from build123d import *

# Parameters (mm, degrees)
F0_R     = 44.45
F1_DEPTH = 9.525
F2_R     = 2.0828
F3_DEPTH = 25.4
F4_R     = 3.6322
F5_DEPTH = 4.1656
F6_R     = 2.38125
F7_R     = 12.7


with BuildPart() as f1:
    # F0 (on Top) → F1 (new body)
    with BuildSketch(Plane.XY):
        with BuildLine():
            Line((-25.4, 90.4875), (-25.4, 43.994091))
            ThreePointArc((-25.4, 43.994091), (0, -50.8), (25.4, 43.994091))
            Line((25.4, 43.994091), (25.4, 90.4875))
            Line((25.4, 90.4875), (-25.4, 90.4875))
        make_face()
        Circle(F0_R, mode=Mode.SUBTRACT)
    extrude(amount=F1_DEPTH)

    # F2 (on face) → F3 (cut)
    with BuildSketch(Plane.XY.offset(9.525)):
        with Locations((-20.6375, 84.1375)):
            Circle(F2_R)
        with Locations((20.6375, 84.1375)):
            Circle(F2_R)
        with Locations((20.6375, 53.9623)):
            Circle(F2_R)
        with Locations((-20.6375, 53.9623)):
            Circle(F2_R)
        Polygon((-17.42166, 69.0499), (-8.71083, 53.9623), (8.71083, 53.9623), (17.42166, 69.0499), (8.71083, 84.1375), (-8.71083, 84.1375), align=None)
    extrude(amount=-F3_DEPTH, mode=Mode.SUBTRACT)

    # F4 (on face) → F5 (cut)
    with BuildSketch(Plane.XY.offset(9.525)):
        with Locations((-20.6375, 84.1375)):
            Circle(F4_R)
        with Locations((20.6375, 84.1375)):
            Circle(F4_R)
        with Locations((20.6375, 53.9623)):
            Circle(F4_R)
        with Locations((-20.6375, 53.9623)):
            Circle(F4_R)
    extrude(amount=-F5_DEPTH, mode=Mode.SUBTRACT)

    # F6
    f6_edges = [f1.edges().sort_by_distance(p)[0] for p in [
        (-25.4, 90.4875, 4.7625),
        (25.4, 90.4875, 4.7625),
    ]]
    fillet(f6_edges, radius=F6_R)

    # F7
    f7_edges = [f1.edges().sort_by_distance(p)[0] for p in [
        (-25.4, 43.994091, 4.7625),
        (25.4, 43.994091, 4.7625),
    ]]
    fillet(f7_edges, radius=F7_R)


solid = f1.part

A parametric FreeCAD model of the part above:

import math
import FreeCAD as App
import Part
import Sketcher
Q = App.Units.Quantity


def edges_at(feature, points):
    """Names of the edges that pass closest to the given points."""
    edges = feature.Shape.Edges
    near = lambda p: min(range(len(edges)), key=lambda i: edges[i].distToShape(Part.Vertex(*p))[0])
    return sorted({f"Edge{near(p) + 1}" for p in points})

doc = App.newDocument("Part")
body = doc.addObject("PartDesign::Body", "Body")

# Sketch on XY plane
sketch1 = body.newObject("Sketcher::SketchObject", "Sketch")
sketch1.AttachmentSupport = (doc.getObject("XY_Plane"), [""])
sketch1.MapMode = "FlatFace"
sketch1.addGeometry([
    Part.LineSegment(App.Vector(-25, 90, 0), App.Vector(-25, 44, 0)),  # 0
    Part.ArcOfCircle(Part.Circle(App.Vector(0, 0, 0), App.Vector(0, 0, 1), 51), math.radians(120), math.radians(420)),  # 1
    Part.LineSegment(App.Vector(25, 44, 0), App.Vector(25, 90, 0)),  # 2
    Part.LineSegment(App.Vector(25, 90, 0), App.Vector(-25, 90, 0)),  # 3
    Part.Circle(App.Vector(0, 0, 0), App.Vector(0, 0, 1), 44),  # 4
], False)
sketch1.addConstraint([
    Sketcher.Constraint("Coincident", 0, 2, 1, 1),
    Sketcher.Constraint("Coincident", 1, 2, 2, 1),
    Sketcher.Constraint("Coincident", 2, 2, 3, 1),
    Sketcher.Constraint("Coincident", 3, 2, 0, 1),
    Sketcher.Constraint("Vertical", 0),
    Sketcher.Constraint("Vertical", 2),
    Sketcher.Constraint("Horizontal", 3),
    Sketcher.Constraint("Coincident", 1, 3, -1, 1),
    Sketcher.Constraint("Coincident", 4, 3, -1, 1),
    Sketcher.Constraint("Horizontal", 0, 2, 1, 2),
    Sketcher.Constraint("Radius", 1, Q("2 in")),
    Sketcher.Constraint("Diameter", 4, Q("3.5 in")),
    Sketcher.Constraint("DistanceX", 3, 2, 3, 1, Q("2 in")),
    Sketcher.Constraint("DistanceY", -1, 1, 2, 2, Q("3.5625 in")),
])
pad1 = body.newObject("PartDesign::Pad", "Pad")
pad1.Profile = sketch1
pad1.Length = Q("0.375 in")

# Sketch on XY plane
sketch2 = body.newObject("Sketcher::SketchObject", "Sketch001")
sketch2.AttachmentSupport = (doc.getObject("XY_Plane"), [""])
sketch2.MapMode = "FlatFace"
sketch2.AttachmentOffset = App.Placement(App.Vector(0, 0, 0.375 * 25.4), App.Rotation())
sketch2.addGeometry([
    Part.Circle(App.Vector(-20.6, 84.1, 0), App.Vector(0, 0, 1), 2.1),  # 0
    Part.Circle(App.Vector(20.6, 84.1, 0), App.Vector(0, 0, 1), 2.1),  # 1
    Part.Circle(App.Vector(20.6, 54, 0), App.Vector(0, 0, 1), 2.1),  # 2
    Part.Circle(App.Vector(-20.6, 54, 0), App.Vector(0, 0, 1), 2.1),  # 3
    Part.LineSegment(App.Vector(-17.4, 69, 0), App.Vector(-8.7, 54, 0)),  # 4
    Part.LineSegment(App.Vector(-8.7, 54, 0), App.Vector(8.7, 54, 0)),  # 5
    Part.LineSegment(App.Vector(8.7, 54, 0), App.Vector(17.4, 69, 0)),  # 6
    Part.LineSegment(App.Vector(17.4, 69, 0), App.Vector(8.7, 84.1, 0)),  # 7
    Part.LineSegment(App.Vector(8.7, 84.1, 0), App.Vector(-8.7, 84.1, 0)),  # 8
    Part.LineSegment(App.Vector(-8.7, 84.1, 0), App.Vector(-17.4, 69, 0)),  # 9
], False)
sketch2.addConstraint([
    Sketcher.Constraint("Coincident", 4, 2, 5, 1),
    Sketcher.Constraint("Coincident", 5, 2, 6, 1),
    Sketcher.Constraint("Coincident", 6, 2, 7, 1),
    Sketcher.Constraint("Coincident", 7, 2, 8, 1),
    Sketcher.Constraint("Coincident", 8, 2, 9, 1),
    Sketcher.Constraint("Coincident", 9, 2, 4, 1),
    Sketcher.Constraint("Horizontal", 5),
    Sketcher.Constraint("Horizontal", 8),
    Sketcher.Constraint("Equal", 0, 1),
    Sketcher.Constraint("Equal", 1, 2),
    Sketcher.Constraint("Equal", 2, 3),
    Sketcher.Constraint("Symmetric", 0, 3, 1, 3, -2),
    Sketcher.Constraint("Symmetric", 2, 3, 3, 3, -2),
    Sketcher.Constraint("Symmetric", 6, 2, 9, 2, -2),
    Sketcher.Constraint("Parallel", 4, 7),
    Sketcher.Constraint("Parallel", 6, 9),
    Sketcher.Constraint("Horizontal", 3, 3, 4, 2),
    Sketcher.Constraint("Horizontal", 1, 3, 7, 2),
    Sketcher.Constraint("Vertical", 1, 3, 2, 3),
    Sketcher.Constraint("Vertical", 5, 2, 7, 2),
    Sketcher.Constraint("Vertical", 4, 2, 8, 2),
    Sketcher.Constraint("Diameter", 0, Q("0.164 in")),
    Sketcher.Constraint("Angle", 4, Q("-60 deg")),
    Sketcher.Constraint("DistanceX", 0, 3, -1, 1, Q("0.8125 in")),
    Sketcher.Constraint("DistanceY", -1, 1, 0, 3, Q("3.3125 in")),
    Sketcher.Constraint("DistanceY", 2, 3, 1, 3, Q("1.188 in")),
    Sketcher.Constraint("DistanceX", 5, 1, 5, 2, Q("17.42166 mm")),
])
pocket1 = body.newObject("PartDesign::Pocket", "Pocket")
pocket1.Profile = sketch2
pocket1.Length = Q("1 in")

# Sketch on XY plane
sketch3 = body.newObject("Sketcher::SketchObject", "Sketch002")
sketch3.AttachmentSupport = (doc.getObject("XY_Plane"), [""])
sketch3.MapMode = "FlatFace"
sketch3.AttachmentOffset = App.Placement(App.Vector(0, 0, 0.375 * 25.4), App.Rotation())
sketch3.addGeometry([
    Part.Circle(App.Vector(-20.6, 84.1, 0), App.Vector(0, 0, 1), 3.6),
    Part.Circle(App.Vector(20.6, 84.1, 0), App.Vector(0, 0, 1), 3.6),
    Part.Circle(App.Vector(20.6, 54, 0), App.Vector(0, 0, 1), 3.6),
    Part.Circle(App.Vector(-20.6, 54, 0), App.Vector(0, 0, 1), 3.6),
], False)
sketch3.addConstraint([
    Sketcher.Constraint("Equal", 0, 1),
    Sketcher.Constraint("Equal", 1, 2),
    Sketcher.Constraint("Equal", 2, 3),
    Sketcher.Constraint("Symmetric", 0, 3, 1, 3, -2),
    Sketcher.Constraint("Symmetric", 2, 3, 3, 3, -2),
    Sketcher.Constraint("Vertical", 1, 3, 2, 3),
    Sketcher.Constraint("Diameter", 0, Q("0.286 in")),
    Sketcher.Constraint("DistanceX", 0, 3, -1, 1, Q("0.8125 in")),
    Sketcher.Constraint("DistanceY", -1, 1, 0, 3, Q("3.3125 in")),
    Sketcher.Constraint("DistanceY", 2, 3, 1, 3, Q("1.188 in")),
])
pocket2 = body.newObject("PartDesign::Pocket", "Pocket001")
pocket2.Profile = sketch3
pocket2.Length = Q("0.164 in")
doc.recompute()

fillet = body.newObject("PartDesign::Fillet", "Fillet")
fillet.Base = (pocket2, edges_at(pocket2, [(-25.4, 90.487, 4.763), (25.4, 90.487, 4.763)]))
fillet.Radius = Q("0.09375 in")
doc.recompute()

fillet2 = body.newObject("PartDesign::Fillet", "Fillet001")
fillet2.Base = (fillet, edges_at(fillet, [(-25.4, 43.994, 4.763), (25.4, 43.994, 4.763)]))
fillet2.Radius = Q("0.5 in")

doc.recompute()
